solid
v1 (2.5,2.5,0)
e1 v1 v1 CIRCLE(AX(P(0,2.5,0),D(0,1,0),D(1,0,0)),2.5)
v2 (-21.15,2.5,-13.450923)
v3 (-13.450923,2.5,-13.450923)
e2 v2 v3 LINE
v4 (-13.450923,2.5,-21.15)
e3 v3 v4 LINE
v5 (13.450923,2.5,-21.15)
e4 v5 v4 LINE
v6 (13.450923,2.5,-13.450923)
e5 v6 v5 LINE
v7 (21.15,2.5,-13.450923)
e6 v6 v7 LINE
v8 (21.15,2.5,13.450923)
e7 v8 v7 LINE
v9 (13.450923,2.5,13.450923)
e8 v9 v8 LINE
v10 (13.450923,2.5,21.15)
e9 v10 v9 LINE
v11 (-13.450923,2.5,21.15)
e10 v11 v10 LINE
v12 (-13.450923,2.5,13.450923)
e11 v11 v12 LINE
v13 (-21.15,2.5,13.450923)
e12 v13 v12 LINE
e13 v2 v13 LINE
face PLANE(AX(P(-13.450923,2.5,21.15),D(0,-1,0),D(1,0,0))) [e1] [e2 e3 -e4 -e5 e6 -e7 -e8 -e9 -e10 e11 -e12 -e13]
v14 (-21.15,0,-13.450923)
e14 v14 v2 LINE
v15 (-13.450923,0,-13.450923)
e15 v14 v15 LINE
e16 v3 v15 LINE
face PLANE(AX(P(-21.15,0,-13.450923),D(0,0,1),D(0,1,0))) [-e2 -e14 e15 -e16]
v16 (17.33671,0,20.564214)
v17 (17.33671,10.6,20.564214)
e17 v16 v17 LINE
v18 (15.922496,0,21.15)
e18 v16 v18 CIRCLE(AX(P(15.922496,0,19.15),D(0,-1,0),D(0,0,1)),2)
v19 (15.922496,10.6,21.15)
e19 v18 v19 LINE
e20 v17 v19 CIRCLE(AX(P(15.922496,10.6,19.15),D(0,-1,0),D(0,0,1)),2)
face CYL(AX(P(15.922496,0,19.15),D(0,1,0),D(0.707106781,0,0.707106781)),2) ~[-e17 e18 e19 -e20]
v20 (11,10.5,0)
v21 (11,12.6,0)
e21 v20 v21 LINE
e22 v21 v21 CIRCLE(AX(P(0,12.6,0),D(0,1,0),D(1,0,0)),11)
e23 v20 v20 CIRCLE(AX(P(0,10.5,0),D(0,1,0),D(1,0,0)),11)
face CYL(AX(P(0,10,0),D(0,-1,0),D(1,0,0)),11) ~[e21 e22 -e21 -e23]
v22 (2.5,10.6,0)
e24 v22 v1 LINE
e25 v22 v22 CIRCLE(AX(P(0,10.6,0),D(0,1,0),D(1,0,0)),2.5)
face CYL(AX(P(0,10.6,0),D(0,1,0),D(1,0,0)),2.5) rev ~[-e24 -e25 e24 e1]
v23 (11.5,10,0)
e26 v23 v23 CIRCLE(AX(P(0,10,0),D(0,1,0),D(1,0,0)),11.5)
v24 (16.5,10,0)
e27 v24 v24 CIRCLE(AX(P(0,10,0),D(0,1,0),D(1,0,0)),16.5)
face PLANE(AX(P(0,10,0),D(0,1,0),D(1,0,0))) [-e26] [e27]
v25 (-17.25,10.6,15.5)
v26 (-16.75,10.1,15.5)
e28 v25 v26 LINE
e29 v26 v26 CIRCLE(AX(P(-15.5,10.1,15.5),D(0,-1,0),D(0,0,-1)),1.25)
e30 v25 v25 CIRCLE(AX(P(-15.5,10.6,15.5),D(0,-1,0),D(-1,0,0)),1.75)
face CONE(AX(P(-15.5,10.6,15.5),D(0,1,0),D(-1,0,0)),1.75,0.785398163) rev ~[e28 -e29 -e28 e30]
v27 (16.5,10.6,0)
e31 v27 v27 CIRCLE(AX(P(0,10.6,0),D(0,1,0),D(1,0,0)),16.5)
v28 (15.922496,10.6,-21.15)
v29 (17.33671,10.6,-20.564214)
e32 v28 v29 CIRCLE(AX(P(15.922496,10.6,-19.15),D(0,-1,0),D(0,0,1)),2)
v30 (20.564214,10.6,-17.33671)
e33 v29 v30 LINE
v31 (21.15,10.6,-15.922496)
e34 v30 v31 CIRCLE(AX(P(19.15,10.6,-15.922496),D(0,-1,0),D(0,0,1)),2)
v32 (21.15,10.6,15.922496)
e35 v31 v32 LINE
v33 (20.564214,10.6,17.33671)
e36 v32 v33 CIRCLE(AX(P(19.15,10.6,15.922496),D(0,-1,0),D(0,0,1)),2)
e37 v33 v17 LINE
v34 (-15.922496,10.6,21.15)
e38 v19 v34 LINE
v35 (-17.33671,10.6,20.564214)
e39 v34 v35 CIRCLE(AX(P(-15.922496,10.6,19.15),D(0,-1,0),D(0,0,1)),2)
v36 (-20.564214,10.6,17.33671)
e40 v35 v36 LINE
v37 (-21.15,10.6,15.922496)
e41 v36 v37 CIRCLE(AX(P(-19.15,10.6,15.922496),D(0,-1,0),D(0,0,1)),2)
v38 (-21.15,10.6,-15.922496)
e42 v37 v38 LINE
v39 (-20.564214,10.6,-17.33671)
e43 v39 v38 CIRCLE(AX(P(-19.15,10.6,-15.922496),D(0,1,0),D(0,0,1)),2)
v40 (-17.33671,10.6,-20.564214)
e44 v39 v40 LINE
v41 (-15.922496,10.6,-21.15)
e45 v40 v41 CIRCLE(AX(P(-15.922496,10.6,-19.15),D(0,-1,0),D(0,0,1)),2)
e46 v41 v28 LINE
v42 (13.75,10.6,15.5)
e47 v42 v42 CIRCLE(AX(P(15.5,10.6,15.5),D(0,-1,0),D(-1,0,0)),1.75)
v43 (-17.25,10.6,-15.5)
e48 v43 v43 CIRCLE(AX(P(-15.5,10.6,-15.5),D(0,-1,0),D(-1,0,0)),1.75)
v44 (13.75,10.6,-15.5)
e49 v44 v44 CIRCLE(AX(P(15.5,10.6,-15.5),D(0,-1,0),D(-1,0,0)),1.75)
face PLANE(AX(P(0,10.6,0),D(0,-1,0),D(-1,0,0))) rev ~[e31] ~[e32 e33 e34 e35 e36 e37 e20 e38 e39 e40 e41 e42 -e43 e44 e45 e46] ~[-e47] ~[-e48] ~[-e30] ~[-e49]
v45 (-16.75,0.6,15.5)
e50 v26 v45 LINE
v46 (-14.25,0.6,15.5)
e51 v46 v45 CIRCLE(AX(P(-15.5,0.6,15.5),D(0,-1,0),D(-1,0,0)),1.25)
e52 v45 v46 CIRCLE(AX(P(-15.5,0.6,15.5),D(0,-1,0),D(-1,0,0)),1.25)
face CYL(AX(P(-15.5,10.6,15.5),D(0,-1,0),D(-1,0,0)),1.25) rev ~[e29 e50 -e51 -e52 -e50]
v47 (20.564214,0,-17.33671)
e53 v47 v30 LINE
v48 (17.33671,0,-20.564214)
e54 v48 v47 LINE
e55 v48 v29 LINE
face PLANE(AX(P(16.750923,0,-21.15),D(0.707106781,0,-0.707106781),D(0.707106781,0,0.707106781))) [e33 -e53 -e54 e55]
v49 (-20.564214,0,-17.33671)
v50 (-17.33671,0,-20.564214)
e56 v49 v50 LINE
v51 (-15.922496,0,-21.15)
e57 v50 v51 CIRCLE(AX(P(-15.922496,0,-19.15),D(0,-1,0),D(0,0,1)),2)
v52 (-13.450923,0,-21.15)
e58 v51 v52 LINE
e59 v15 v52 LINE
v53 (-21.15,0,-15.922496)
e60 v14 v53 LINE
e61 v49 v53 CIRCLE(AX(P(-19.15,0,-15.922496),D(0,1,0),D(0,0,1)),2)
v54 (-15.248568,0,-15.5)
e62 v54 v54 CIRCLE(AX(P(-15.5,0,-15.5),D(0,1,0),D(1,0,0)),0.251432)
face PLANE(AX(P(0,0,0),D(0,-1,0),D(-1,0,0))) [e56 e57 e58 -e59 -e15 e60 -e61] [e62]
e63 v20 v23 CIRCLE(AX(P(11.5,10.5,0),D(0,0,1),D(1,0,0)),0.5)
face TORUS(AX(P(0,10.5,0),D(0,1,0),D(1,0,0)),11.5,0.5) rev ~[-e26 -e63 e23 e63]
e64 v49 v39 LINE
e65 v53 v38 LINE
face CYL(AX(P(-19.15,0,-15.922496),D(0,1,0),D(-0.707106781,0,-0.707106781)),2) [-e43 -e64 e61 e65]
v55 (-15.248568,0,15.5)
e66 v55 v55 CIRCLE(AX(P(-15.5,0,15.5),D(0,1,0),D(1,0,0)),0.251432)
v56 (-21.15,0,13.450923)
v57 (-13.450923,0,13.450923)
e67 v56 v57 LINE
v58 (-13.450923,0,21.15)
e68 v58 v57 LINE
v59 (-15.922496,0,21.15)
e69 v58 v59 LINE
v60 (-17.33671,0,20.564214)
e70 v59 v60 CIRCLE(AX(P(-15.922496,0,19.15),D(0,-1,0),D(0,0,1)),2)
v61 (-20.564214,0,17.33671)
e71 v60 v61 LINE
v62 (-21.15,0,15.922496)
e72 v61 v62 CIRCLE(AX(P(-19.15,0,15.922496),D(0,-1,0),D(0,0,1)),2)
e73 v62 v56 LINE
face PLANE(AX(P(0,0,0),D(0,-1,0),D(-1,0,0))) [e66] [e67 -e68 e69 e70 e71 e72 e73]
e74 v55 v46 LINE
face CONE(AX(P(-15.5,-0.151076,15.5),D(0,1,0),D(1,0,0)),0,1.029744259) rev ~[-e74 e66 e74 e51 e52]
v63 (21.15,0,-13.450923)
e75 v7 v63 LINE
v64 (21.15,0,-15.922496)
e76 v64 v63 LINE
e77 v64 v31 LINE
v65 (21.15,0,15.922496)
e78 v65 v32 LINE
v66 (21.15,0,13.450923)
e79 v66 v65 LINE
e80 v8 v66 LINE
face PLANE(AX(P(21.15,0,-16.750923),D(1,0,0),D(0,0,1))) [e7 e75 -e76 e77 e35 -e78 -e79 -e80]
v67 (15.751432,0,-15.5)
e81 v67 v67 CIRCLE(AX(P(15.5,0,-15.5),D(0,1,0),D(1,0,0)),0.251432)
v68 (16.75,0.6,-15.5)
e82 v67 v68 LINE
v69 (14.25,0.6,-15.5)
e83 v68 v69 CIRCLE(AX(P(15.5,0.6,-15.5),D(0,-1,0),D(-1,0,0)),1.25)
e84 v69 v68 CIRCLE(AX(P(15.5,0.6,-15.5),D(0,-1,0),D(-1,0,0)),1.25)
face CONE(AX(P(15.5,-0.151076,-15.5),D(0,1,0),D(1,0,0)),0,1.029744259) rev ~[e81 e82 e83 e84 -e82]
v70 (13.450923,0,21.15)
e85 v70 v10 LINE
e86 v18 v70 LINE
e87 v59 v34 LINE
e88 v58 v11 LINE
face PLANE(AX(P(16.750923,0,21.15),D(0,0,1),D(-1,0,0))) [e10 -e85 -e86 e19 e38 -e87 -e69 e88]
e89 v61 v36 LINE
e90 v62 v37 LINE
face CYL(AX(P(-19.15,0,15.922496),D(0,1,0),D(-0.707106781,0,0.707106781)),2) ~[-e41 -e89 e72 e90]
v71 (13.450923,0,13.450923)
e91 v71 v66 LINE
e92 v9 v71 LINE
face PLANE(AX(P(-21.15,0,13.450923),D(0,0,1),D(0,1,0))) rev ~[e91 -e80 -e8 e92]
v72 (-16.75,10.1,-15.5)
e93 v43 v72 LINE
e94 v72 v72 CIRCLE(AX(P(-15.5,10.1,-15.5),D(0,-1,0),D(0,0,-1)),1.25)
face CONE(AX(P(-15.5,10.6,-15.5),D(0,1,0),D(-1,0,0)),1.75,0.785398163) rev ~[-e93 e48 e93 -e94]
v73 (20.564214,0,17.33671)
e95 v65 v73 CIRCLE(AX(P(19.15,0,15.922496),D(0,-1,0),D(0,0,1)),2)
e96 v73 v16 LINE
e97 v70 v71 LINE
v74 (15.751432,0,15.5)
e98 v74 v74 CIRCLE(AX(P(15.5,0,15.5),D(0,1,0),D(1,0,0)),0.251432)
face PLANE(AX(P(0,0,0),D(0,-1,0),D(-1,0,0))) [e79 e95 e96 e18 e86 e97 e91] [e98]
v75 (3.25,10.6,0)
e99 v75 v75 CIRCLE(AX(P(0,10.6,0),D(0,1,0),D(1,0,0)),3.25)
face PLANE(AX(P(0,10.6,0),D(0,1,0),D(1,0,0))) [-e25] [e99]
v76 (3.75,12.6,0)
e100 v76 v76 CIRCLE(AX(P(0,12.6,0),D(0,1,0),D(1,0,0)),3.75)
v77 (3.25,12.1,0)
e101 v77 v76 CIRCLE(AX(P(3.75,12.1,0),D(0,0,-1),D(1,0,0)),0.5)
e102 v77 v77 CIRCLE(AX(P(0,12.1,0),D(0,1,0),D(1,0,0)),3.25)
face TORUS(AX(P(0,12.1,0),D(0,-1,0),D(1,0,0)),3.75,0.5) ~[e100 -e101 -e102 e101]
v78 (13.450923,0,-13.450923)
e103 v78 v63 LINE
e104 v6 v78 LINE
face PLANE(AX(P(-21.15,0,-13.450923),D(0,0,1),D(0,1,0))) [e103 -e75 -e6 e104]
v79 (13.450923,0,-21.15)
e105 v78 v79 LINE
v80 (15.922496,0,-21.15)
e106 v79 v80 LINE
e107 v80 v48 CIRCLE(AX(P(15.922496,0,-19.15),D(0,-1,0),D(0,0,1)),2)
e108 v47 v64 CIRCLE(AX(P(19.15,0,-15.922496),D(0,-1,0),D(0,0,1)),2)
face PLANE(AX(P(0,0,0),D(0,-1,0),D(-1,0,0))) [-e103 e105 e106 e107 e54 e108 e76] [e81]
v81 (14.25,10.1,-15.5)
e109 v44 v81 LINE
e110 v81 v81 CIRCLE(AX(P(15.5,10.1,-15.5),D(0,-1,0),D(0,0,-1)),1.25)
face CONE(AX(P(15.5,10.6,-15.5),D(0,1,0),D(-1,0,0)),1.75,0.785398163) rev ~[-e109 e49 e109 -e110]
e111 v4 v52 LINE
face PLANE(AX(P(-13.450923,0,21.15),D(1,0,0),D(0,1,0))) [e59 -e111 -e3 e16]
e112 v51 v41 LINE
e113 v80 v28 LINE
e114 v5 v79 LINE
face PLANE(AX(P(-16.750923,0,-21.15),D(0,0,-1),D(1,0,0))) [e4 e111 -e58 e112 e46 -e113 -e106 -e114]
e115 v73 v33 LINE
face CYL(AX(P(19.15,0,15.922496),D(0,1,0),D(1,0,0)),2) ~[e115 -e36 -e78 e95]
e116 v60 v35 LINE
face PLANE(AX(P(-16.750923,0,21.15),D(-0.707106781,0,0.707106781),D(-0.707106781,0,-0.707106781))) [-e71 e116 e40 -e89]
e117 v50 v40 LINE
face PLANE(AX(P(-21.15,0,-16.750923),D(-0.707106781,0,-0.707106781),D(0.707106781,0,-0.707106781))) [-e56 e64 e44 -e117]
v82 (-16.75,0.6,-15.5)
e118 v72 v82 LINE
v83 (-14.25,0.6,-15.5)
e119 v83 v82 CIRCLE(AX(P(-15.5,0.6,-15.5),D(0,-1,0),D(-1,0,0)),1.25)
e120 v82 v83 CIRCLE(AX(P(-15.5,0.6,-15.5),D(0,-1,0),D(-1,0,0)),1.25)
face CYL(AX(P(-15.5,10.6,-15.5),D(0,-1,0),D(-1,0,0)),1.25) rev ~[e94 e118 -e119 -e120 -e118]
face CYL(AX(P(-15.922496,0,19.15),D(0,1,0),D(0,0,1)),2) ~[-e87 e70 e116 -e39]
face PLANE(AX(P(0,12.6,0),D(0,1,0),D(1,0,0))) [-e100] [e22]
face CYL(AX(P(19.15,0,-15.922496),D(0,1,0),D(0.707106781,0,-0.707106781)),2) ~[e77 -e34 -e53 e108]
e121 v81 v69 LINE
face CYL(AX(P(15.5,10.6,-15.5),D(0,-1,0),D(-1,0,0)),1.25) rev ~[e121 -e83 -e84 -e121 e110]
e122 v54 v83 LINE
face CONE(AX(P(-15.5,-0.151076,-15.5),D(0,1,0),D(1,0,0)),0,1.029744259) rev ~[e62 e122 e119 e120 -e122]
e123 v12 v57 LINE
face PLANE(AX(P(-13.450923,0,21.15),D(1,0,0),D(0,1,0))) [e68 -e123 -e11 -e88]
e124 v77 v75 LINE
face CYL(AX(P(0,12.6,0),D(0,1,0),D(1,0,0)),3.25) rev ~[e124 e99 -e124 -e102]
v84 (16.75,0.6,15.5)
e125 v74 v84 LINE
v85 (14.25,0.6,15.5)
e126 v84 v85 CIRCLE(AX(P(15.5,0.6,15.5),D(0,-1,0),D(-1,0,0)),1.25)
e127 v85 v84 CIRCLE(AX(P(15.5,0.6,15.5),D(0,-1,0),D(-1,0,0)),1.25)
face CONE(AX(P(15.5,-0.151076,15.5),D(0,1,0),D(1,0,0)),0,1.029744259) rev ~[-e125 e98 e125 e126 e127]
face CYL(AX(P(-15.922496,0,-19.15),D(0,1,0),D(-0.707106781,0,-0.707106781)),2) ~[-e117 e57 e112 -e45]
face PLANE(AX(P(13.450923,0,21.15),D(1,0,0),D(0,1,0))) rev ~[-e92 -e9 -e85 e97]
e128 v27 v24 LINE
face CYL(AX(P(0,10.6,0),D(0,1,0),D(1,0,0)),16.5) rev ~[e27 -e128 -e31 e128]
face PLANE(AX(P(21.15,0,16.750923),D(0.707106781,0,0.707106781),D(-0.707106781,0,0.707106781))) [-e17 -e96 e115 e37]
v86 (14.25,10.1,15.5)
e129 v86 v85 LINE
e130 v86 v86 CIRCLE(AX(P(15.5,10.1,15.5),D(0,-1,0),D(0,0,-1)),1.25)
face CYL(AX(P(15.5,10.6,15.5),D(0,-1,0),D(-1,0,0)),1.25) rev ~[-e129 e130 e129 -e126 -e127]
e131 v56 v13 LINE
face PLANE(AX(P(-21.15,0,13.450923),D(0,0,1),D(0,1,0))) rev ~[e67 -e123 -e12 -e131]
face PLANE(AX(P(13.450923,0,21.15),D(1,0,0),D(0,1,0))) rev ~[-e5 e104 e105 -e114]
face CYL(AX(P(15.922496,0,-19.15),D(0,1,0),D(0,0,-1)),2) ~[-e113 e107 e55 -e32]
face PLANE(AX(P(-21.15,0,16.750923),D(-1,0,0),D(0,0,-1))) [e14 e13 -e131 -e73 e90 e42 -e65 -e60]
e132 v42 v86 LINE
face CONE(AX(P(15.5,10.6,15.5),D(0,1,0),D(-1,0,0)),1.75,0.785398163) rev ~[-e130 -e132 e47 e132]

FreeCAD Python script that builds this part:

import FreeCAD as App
import Part
import Sketcher

V = App.Vector


def edges_at(feature, points):
    """Names of the edges that pass closest to the given points."""
    edges = feature.Shape.Edges
    near = lambda p: min(range(len(edges)), key=lambda i: edges[i].distToShape(Part.Vertex(*p))[0])
    return sorted({f"Edge{near(p) + 1}" for p in points})

doc = App.newDocument("Part")
body = doc.addObject("PartDesign::Body", "Body")

# Sketch on XZ plane
sketch1 = body.newObject("Sketcher::SketchObject", "Sketch")
sketch1.AttachmentSupport = (doc.getObject("XZ_Plane"), [""])
sketch1.MapMode = "FlatFace"
sketch1.addGeometry([
    Part.LineSegment(V(-16.750923, -21.15, 0), V(-21.15, -16.750923, 0)),  # 0
    Part.LineSegment(V(-21.15, -16.750923, 0), V(-21.15, 16.750923, 0)),  # 1
    Part.LineSegment(V(-21.15, 16.750923, 0), V(-16.750923, 21.15, 0)),  # 2
    Part.LineSegment(V(-16.750923, 21.15, 0), V(16.750923, 21.15, 0)),  # 3
    Part.LineSegment(V(16.750923, 21.15, 0), V(21.15, 16.750923, 0)),  # 4
    Part.LineSegment(V(21.15, 16.750923, 0), V(21.15, -16.750923, 0)),  # 5
    Part.LineSegment(V(21.15, -16.750923, 0), V(16.750923, -21.15, 0)),  # 6
    Part.LineSegment(V(16.750923, -21.15, 0), V(-16.750923, -21.15, 0)),  # 7
], False)
sketch1.addConstraint([
    Sketcher.Constraint("Coincident", 0, 2, 1, 1),
    Sketcher.Constraint("Coincident", 1, 2, 2, 1),
    Sketcher.Constraint("Coincident", 2, 2, 3, 1),
    Sketcher.Constraint("Coincident", 3, 2, 4, 1),
    Sketcher.Constraint("Coincident", 4, 2, 5, 1),
    Sketcher.Constraint("Coincident", 5, 2, 6, 1),
    Sketcher.Constraint("Coincident", 6, 2, 7, 1),
    Sketcher.Constraint("Coincident", 7, 2, 0, 1),
    Sketcher.Constraint("Vertical", 1),
    Sketcher.Constraint("Horizontal", 3),
    Sketcher.Constraint("Vertical", 5),
    Sketcher.Constraint("Horizontal", 7),
    Sketcher.Constraint("Symmetric", 0, 2, 4, 2, -1, 1),
    Sketcher.Constraint("Symmetric", 2, 2, 6, 2, -1, 1),
    Sketcher.Constraint("Perpendicular", 0, 2),
    Sketcher.Constraint("Perpendicular", 2, 4),
    Sketcher.Constraint("Perpendicular", 4, 6),
    Sketcher.Constraint("Horizontal", 1, 2, 4, 2),
    Sketcher.Constraint("Vertical", 3, 2, 6, 2),
    Sketcher.Constraint("Equal", 7, 1),
    Sketcher.Constraint("DistanceX", 1, 2, 4, 2, 42.3),
    Sketcher.Constraint("DistanceX", 3, 1, 3, 2, 33.501847),
])
pad1 = body.newObject("PartDesign::Pad", "Pad")
pad1.Profile = sketch1
pad1.Length = 10.6
pad1.Reversed = True

# Sketch on XZ plane
sketch2 = body.newObject("Sketcher::SketchObject", "Sketch001")
sketch2.AttachmentSupport = (doc.getObject("XZ_Plane"), [""])
sketch2.MapMode = "FlatFace"
sketch2.AttachmentOffset = App.Placement(V(0, 0, -10.6), App.Rotation())
sketch2.addGeometry(Part.Circle(V(0, 0, 0), V(0, 0, 1), 16.5), False)
sketch2.addConstraint([
    Sketcher.Constraint("Coincident", 0, 3, -1, 1),
    Sketcher.Constraint("Diameter", 0, 33.0),
])
pocket1 = body.newObject("PartDesign::Pocket", "Pocket")
pocket1.Profile = sketch2
pocket1.Length = 0.6
pocket1.Reversed = True

# Sketch on XZ plane
sketch3 = body.newObject("Sketcher::SketchObject", "Sketch002")
sketch3.AttachmentSupport = (doc.getObject("XZ_Plane"), [""])
sketch3.MapMode = "FlatFace"
sketch3.AttachmentOffset = App.Placement(V(0, 0, -10), App.Rotation())
sketch3.addGeometry(Part.Circle(V(0, 0, 0), V(0, 0, 1), 11), False)
sketch3.addConstraint([
    Sketcher.Constraint("Coincident", 0, 3, -1, 1),
    Sketcher.Constraint("Diameter", 0, 22.0),
])
pad2 = body.newObject("PartDesign::Pad", "Pad001")
pad2.Profile = sketch3
pad2.Length = 2.6
pad2.Reversed = True

# Sketch on XZ plane
sketch4 = body.newObject("Sketcher::SketchObject", "Sketch003")
sketch4.AttachmentSupport = (doc.getObject("XZ_Plane"), [""])
sketch4.MapMode = "FlatFace"
sketch4.AttachmentOffset = App.Placement(V(0, 0, -12.6), App.Rotation())
sketch4.addGeometry(Part.Circle(V(0, 0, 0), V(0, 0, 1), 3.25), False)
sketch4.addConstraint([
    Sketcher.Constraint("Coincident", 0, 3, -1, 1),
    Sketcher.Constraint("Diameter", 0, 6.5),
])
pocket2 = body.newObject("PartDesign::Pocket", "Pocket001")
pocket2.Profile = sketch4
pocket2.Length = 2
pocket2.Reversed = True

# Sketch on XZ plane
sketch5 = body.newObject("Sketcher::SketchObject", "Sketch004")
sketch5.AttachmentSupport = (doc.getObject("XZ_Plane"), [""])
sketch5.MapMode = "FlatFace"
sketch5.AttachmentOffset = App.Placement(V(0, 0, -10.6), App.Rotation())
sketch5.addGeometry(Part.Circle(V(0, 0, 0), V(0, 0, 1), 2.5), False)
sketch5.addConstraint([
    Sketcher.Constraint("Coincident", 0, 3, -1, 1),
    Sketcher.Constraint("Diameter", 0, 5.0),
])
pocket3 = body.newObject("PartDesign::Pocket", "Pocket002")
pocket3.Profile = sketch5
pocket3.Type = "ThroughAll"
pocket3.Reversed = True
doc.recompute()

fillet = body.newObject("PartDesign::Fillet", "Fillet")
fillet.Base = (pocket3, edges_at(pocket3, [(-3.25, 12.6, 0)]))
fillet.Radius = 0.5
doc.recompute()

fillet2 = body.newObject("PartDesign::Fillet", "Fillet001")
fillet2.Base = (fillet, edges_at(fillet, [(-11, 10, 0)]))
fillet2.Radius = 0.5

# Sketch on XZ plane
sketch6 = body.newObject("Sketcher::SketchObject", "Sketch005")
sketch6.AttachmentSupport = (doc.getObject("XZ_Plane"), [""])
sketch6.MapMode = "FlatFace"
sketch6.AttachmentOffset = App.Placement(V(0, 0, -10.6), App.Rotation())
sketch6.addGeometry([
    Part.Circle(V(-15.5, -15.5, 0), V(0, 0, 1), 1.25),
    Part.Circle(V(15.5, -15.5, 0), V(0, 0, 1), 1.25),
    Part.Circle(V(15.5, 15.5, 0), V(0, 0, 1), 1.25),
    Part.Circle(V(-15.5, 15.5, 0), V(0, 0, 1), 1.25),
], False)
sketch6.addConstraint([
    Sketcher.Constraint("Equal", 0, 1),
    Sketcher.Constraint("Equal", 1, 2),
    Sketcher.Constraint("Equal", 2, 3),
    Sketcher.Constraint("Symmetric", 0, 3, 2, 3, -1, 1),
    Sketcher.Constraint("Symmetric", 1, 3, 3, 3, -1, 1),
    Sketcher.Constraint("Symmetric", 0, 3, 1, 3, -2),
    Sketcher.Constraint("Diameter", 0, 2.5),
    Sketcher.Constraint("DistanceX", 0, 3, 1, 3, 31.0),
    Sketcher.Constraint("DistanceY", 1, 3, 2, 3, 31.0),
])
doc.recompute()
hole = body.newObject("PartDesign::Hole", "Hole")
hole.Profile = sketch6
hole.ThreadType = "None"
hole.Diameter = 2.5
hole.DepthType = "Dimension"
hole.Depth = 10
hole.DrillPoint = "Angled"
hole.DrillPointAngle = 118
hole.HoleCutType = "Countersink"
hole.HoleCutDiameter = 3.5
hole.HoleCutCountersinkAngle = 90
hole.Reversed = True

# Sketch on XY plane
sketch7 = body.newObject("Sketcher::SketchObject", "Sketch006")
sketch7.AttachmentSupport = (doc.getObject("XY_Plane"), [""])
sketch7.MapMode = "FlatFace"
sketch7.AttachmentOffset = App.Placement(V(0, 0, 21.15), App.Rotation())
sketch7.addGeometry([
    Part.LineSegment(V(-13.450923, 2.5, 0), V(-13.450923, 0, 0)),
    Part.LineSegment(V(-13.450923, 0, 0), V(13.450923, 0, 0)),
    Part.LineSegment(V(13.450923, 0, 0), V(13.450923, 2.5, 0)),
    Part.LineSegment(V(13.450923, 2.5, 0), V(-13.450923, 2.5, 0)),
], False)
sketch7.addConstraint([
    Sketcher.Constraint("Coincident", 0, 2, 1, 1),
    Sketcher.Constraint("Coincident", 1, 2, 2, 1),
    Sketcher.Constraint("Coincident", 2, 2, 3, 1),
    Sketcher.Constraint("Coincident", 3, 2, 0, 1),
    Sketcher.Constraint("Vertical", 0),
    Sketcher.Constraint("Horizontal", 1),
    Sketcher.Constraint("Vertical", 2),
    Sketcher.Constraint("Horizontal", 3),
    Sketcher.Constraint("Symmetric", 0, 2, 1, 2, -1, 1),
    Sketcher.Constraint("DistanceY", 0, 2, 0, 1, 2.5),
    Sketcher.Constraint("DistanceX", 1, 1, 1, 2, 26.901847),
])
pocket4 = body.newObject("PartDesign::Pocket", "Pocket003")
pocket4.Profile = sketch7
pocket4.Type = "ThroughAll"

# Sketch on YZ plane
sketch8 = body.newObject("Sketcher::SketchObject", "Sketch007")
sketch8.AttachmentSupport = (doc.getObject("YZ_Plane"), [""])
sketch8.MapMode = "FlatFace"
sketch8.AttachmentOffset = App.Placement(V(0, 0, -21.15), App.Rotation())
sketch8.addGeometry([
    Part.LineSegment(V(2.5, -13.450923, 0), V(0, -13.450923, 0)),
    Part.LineSegment(V(0, -13.450923, 0), V(0, 13.450923, 0)),
    Part.LineSegment(V(0, 13.450923, 0), V(2.5, 13.450923, 0)),
    Part.LineSegment(V(2.5, 13.450923, 0), V(2.5, -13.450923, 0)),
], False)
sketch8.addConstraint([
    Sketcher.Constraint("Coincident", 0, 2, 1, 1),
    Sketcher.Constraint("Coincident", 1, 2, 2, 1),
    Sketcher.Constraint("Coincident", 2, 2, 3, 1),
    Sketcher.Constraint("Coincident", 3, 2, 0, 1),
    Sketcher.Constraint("Horizontal", 0),
    Sketcher.Constraint("Vertical", 1),
    Sketcher.Constraint("Horizontal", 2),
    Sketcher.Constraint("Vertical", 3),
    Sketcher.Constraint("Symmetric", 0, 2, 1, 2, -1, 1),
    Sketcher.Constraint("DistanceX", 0, 2, 0, 1, 2.5),
    Sketcher.Constraint("DistanceY", 1, 1, 1, 2, 26.901847),
])
pocket5 = body.newObject("PartDesign::Pocket", "Pocket004")
pocket5.Profile = sketch8
pocket5.Type = "ThroughAll"
pocket5.Reversed = True
doc.recompute()

fillet3 = body.newObject("PartDesign::Fillet", "Fillet002")
fillet3.Base = (pocket5, edges_at(pocket5, [
    (-21.15, 5.3, -16.751),
    (-16.751, 5.3, -21.15),
    (16.751, 5.3, -21.15),
    (21.15, 5.3, -16.751),
    (21.15, 5.3, 16.751),
    (16.751, 5.3, 21.15),
    (-16.751, 5.3, 21.15),
    (-21.15, 5.3, 16.751),
]))
fillet3.Radius = 2

doc.recompute()
